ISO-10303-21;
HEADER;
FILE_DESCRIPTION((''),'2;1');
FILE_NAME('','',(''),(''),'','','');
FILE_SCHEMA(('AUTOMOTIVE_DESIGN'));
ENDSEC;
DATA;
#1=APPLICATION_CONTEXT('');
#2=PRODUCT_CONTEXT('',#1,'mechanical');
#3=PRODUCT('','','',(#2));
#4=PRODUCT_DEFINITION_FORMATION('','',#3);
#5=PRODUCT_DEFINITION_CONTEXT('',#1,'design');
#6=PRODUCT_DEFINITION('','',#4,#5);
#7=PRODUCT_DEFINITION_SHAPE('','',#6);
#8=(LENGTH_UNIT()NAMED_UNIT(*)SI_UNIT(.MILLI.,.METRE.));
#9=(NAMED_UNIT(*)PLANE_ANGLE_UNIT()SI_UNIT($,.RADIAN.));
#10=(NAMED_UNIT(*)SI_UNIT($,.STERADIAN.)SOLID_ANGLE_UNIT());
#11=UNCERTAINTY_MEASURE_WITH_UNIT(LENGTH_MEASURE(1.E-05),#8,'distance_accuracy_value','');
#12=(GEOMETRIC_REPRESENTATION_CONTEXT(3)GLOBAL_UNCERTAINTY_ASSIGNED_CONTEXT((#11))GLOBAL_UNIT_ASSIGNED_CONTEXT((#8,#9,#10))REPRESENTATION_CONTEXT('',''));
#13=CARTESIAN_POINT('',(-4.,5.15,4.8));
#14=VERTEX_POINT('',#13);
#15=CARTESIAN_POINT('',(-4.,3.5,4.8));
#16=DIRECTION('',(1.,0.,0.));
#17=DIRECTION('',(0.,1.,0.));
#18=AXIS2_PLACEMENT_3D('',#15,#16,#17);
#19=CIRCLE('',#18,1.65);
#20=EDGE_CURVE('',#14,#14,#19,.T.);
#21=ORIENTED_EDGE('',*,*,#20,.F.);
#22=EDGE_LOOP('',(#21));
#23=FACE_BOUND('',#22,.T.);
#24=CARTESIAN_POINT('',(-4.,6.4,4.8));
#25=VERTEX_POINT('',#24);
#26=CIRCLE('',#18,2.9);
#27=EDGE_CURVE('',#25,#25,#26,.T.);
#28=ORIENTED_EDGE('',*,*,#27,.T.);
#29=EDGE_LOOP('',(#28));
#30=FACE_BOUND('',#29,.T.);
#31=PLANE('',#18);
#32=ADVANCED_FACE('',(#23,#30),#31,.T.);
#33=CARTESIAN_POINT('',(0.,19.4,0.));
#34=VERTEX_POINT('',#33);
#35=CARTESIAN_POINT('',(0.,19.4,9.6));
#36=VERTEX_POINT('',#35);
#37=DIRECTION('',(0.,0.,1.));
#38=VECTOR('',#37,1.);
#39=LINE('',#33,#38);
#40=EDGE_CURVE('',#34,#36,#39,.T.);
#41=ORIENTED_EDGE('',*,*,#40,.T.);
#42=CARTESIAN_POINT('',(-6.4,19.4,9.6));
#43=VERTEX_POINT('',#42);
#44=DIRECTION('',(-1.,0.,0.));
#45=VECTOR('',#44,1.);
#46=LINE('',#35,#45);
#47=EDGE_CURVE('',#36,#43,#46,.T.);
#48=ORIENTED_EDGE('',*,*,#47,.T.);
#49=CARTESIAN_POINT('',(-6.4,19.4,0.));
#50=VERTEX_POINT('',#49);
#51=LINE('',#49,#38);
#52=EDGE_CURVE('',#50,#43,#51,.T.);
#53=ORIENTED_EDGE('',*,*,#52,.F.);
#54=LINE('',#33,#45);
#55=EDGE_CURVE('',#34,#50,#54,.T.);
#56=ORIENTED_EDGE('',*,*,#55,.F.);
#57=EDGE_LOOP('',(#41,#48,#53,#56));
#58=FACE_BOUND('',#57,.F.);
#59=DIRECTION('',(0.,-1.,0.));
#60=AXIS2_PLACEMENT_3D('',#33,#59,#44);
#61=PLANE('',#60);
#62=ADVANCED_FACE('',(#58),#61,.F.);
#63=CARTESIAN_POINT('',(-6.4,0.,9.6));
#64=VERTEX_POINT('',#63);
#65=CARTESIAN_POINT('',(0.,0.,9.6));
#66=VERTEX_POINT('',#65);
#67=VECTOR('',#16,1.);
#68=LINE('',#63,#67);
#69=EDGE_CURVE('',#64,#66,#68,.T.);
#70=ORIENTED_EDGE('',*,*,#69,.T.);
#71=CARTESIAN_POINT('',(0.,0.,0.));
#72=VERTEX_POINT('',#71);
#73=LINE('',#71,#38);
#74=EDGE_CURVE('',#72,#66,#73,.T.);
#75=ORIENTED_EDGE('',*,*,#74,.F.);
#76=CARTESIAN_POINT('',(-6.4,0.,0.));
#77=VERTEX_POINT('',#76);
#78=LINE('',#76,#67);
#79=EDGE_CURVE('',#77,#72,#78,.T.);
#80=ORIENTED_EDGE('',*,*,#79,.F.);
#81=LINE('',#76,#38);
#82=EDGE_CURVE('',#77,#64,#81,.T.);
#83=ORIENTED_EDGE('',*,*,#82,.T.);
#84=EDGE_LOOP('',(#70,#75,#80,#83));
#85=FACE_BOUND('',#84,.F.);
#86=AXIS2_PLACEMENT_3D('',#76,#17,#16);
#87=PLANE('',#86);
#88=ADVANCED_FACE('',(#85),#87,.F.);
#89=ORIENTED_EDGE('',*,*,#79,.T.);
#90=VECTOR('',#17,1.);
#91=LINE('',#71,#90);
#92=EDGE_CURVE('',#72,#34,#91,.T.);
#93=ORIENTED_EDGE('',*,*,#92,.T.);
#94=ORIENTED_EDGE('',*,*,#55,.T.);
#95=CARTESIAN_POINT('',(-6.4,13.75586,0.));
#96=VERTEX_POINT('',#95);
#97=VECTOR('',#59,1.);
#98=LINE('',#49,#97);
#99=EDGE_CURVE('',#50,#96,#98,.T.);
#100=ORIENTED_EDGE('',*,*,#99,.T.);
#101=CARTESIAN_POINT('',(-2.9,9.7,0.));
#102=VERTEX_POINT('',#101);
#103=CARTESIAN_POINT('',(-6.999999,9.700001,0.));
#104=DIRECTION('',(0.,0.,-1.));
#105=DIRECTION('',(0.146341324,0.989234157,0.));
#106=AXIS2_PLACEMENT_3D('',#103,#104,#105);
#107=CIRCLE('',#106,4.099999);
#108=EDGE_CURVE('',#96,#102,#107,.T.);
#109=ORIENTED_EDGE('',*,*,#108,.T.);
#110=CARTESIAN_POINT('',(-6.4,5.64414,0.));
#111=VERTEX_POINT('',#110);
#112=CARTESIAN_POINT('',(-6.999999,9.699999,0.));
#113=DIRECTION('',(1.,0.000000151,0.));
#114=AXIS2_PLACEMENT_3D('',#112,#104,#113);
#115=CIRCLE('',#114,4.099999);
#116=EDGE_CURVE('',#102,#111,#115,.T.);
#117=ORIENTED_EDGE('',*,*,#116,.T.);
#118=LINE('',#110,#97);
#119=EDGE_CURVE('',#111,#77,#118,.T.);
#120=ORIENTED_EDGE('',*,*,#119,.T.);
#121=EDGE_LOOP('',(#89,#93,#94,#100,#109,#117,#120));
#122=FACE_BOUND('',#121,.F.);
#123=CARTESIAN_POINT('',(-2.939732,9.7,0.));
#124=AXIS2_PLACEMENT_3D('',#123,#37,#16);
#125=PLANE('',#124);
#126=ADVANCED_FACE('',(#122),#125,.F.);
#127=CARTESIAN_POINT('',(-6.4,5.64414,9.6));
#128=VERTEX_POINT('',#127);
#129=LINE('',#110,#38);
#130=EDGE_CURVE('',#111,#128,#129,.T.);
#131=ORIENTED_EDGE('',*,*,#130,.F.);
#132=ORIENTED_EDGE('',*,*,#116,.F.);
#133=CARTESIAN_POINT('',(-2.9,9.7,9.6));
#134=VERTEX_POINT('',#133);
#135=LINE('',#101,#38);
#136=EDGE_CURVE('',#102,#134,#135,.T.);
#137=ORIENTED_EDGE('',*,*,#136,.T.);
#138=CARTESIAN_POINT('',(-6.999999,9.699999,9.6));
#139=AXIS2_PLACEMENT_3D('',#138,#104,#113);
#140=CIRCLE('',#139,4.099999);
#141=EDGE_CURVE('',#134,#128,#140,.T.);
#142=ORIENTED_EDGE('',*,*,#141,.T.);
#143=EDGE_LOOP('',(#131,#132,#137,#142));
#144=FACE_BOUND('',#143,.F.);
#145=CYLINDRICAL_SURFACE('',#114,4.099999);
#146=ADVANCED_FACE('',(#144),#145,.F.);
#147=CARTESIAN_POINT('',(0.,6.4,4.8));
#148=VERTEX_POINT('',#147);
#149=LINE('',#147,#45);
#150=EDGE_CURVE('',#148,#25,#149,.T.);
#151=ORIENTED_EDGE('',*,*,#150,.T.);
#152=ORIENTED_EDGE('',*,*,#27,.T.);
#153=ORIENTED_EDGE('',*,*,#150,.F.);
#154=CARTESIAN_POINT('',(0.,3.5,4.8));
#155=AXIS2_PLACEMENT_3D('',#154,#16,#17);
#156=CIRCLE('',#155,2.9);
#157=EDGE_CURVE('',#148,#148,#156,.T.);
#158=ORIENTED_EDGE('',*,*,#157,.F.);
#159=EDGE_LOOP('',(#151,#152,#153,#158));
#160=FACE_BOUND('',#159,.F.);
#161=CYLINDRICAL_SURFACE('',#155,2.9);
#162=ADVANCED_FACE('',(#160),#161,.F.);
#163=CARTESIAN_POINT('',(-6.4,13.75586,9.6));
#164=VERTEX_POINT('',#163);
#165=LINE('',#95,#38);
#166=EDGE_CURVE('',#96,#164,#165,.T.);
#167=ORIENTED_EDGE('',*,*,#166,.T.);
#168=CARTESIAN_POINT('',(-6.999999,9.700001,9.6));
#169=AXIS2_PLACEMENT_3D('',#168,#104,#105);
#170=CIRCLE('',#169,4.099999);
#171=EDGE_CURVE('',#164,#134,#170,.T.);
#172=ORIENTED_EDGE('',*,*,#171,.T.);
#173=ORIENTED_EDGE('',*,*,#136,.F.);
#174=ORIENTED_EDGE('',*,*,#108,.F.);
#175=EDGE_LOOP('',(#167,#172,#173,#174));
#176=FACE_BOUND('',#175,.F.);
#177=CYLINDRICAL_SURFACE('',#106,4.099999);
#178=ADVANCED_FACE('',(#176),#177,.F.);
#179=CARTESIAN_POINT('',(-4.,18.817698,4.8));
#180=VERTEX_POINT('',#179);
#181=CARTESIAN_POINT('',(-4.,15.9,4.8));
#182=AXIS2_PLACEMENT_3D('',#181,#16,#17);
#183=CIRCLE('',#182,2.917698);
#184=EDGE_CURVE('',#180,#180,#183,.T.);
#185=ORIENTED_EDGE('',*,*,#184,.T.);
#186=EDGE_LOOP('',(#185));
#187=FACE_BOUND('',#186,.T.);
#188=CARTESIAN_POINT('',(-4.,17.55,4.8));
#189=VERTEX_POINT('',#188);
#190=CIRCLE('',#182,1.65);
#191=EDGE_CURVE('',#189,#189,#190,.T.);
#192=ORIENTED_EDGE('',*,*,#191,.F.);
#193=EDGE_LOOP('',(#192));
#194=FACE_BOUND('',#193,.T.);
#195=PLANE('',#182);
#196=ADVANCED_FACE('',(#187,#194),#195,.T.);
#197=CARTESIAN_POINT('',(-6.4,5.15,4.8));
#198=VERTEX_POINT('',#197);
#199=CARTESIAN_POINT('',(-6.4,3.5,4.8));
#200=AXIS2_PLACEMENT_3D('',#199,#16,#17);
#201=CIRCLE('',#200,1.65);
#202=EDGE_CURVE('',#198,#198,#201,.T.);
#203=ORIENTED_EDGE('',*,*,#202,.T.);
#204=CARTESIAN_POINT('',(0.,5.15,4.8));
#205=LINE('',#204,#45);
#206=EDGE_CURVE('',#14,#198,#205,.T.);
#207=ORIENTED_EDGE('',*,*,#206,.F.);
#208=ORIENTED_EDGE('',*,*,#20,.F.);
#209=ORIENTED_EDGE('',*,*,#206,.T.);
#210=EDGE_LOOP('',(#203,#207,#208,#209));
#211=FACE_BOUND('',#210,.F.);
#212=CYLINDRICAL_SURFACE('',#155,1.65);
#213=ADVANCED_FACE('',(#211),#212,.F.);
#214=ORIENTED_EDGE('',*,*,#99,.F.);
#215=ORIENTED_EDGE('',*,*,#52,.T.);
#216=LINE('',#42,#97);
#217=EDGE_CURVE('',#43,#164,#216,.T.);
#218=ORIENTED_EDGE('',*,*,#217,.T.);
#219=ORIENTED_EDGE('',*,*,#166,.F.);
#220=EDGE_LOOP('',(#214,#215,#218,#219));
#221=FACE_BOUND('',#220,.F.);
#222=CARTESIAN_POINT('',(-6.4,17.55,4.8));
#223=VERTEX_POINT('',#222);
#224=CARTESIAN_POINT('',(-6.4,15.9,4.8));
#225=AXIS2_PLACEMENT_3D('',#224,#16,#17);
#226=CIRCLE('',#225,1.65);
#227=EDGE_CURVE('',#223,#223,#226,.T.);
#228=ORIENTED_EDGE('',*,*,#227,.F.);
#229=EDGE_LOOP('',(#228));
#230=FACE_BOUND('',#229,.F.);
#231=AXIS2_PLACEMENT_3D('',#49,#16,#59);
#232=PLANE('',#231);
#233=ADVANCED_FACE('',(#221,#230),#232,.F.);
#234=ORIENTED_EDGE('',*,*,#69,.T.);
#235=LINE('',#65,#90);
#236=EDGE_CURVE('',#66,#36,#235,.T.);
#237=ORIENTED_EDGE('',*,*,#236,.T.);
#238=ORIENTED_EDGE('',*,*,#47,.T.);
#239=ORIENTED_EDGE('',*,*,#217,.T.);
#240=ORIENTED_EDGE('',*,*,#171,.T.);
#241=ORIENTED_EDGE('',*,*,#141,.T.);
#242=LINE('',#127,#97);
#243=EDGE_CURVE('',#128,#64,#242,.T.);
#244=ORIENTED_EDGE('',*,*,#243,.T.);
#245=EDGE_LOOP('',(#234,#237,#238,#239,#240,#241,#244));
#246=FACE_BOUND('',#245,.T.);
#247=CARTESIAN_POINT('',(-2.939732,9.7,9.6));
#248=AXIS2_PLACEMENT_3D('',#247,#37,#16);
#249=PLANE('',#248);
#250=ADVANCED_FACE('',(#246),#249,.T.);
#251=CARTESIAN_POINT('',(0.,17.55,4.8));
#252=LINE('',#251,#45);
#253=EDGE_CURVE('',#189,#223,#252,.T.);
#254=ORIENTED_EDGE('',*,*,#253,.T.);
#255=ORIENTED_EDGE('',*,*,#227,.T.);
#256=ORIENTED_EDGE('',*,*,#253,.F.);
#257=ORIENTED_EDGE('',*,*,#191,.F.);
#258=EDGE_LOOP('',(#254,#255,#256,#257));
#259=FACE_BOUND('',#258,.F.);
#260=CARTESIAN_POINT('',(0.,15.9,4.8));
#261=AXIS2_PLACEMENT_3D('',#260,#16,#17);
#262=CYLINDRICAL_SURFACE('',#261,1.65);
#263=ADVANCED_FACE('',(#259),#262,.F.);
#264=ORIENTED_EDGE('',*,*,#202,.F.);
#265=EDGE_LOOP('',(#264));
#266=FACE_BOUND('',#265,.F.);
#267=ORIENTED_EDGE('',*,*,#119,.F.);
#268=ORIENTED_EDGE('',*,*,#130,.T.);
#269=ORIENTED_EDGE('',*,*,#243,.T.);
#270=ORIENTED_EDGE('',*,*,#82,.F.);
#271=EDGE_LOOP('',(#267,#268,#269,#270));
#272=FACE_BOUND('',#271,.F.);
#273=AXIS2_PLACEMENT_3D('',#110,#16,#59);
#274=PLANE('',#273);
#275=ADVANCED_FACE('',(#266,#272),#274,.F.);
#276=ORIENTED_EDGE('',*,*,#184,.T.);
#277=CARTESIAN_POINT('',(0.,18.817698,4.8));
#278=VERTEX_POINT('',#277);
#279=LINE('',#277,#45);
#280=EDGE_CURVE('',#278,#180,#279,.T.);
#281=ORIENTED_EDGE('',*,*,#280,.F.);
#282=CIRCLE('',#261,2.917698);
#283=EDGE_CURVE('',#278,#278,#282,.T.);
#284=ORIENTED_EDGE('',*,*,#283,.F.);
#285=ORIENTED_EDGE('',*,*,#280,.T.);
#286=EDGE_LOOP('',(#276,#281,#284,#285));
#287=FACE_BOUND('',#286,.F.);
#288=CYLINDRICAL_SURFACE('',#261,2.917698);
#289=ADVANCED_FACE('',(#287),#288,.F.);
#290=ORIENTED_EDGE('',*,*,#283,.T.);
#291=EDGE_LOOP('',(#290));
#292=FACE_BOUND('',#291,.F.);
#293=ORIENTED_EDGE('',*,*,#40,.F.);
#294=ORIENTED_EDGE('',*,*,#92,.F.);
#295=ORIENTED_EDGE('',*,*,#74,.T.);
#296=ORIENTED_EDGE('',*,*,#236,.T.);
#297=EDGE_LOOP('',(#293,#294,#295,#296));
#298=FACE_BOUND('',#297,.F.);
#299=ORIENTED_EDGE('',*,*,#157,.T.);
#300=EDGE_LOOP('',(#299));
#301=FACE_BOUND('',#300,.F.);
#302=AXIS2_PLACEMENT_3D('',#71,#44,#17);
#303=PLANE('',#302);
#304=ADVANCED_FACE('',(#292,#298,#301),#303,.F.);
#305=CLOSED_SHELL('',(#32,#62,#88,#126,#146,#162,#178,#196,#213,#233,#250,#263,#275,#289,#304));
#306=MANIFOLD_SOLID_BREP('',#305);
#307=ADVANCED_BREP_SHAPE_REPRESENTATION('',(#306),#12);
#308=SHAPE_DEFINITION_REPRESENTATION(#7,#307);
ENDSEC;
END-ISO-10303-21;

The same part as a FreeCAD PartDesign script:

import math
import FreeCAD as App
import Part
import Sketcher

doc = App.newDocument("Part")
params = doc.addObject("Spreadsheet::Sheet", "Params")
for row, (alias, value) in enumerate([
    ("sketch1_radius", "4.099999 mm"),
    ("sketch1_width", "6.4 mm"),
    ("sketch1_height", "19.4 mm"),
    ("pad1_length", "9.6 mm"),
    ("sketch2_diameter", "3.3 mm"),
    ("pocket1_length", "25 mm"),
    ("sketch3_diameter", "5.8 mm"),
    ("sketch3_diameter2", "3.3 mm"),
    ("pocket2_length", "4 mm"),
], start=1):
    params.set(f"A{row}", alias)
    params.set(f"B{row}", "=" + value)
    params.setAlias(f"B{row}", alias)

body = doc.addObject("PartDesign::Body", "Body")

sketch1 = body.newObject("Sketcher::SketchObject", "Sketch")
sketch1.AttachmentSupport = (doc.getObject("XY_Plane"), [""])
sketch1.MapMode = "FlatFace"
sketch1.addGeometry(Part.ArcOfCircle(Part.Circle(App.Vector(-6.999999, 9.700001, 0), App.Vector(0, 0, 1), 4.099999), math.radians(-0.000009), math.radians(81.58504)), False)
sketch1.addGeometry(Part.ArcOfCircle(Part.Circle(App.Vector(-6.999999, 9.699999, 0), App.Vector(0, 0, 1), 4.099999), math.radians(-81.58504), math.radians(0.000009)), False)
sketch1.addGeometry(Part.LineSegment(App.Vector(-6.4, 5.64414, 0), App.Vector(-6.4, 0, 0)), False)
sketch1.addGeometry(Part.LineSegment(App.Vector(-6.4, 0, 0), App.Vector(0, 0, 0)), False)
sketch1.addGeometry(Part.LineSegment(App.Vector(0, 0, 0), App.Vector(0, 19.4, 0)), False)
sketch1.addGeometry(Part.LineSegment(App.Vector(0, 19.4, 0), App.Vector(-6.4, 19.4, 0)), False)
sketch1.addGeometry(Part.LineSegment(App.Vector(-6.4, 19.4, 0), App.Vector(-6.4, 13.75586, 0)), False)
sketch1.addConstraint(Sketcher.Constraint("Tangent", 0, 1, 1, 2))
sketch1.addConstraint(Sketcher.Constraint("Coincident", 1, 1, 2, 1))
sketch1.addConstraint(Sketcher.Constraint("Coincident", 2, 2, 3, 1))
sketch1.addConstraint(Sketcher.Constraint("Coincident", 3, 2, 4, 1))
sketch1.addConstraint(Sketcher.Constraint("Coincident", 4, 2, 5, 1))
sketch1.addConstraint(Sketcher.Constraint("Coincident", 5, 2, 6, 1))
sketch1.addConstraint(Sketcher.Constraint("Coincident", 6, 2, 0, 2))
sketch1.addConstraint(Sketcher.Constraint("Vertical", 2))
sketch1.addConstraint(Sketcher.Constraint("Horizontal", 3))
sketch1.addConstraint(Sketcher.Constraint("Vertical", 4))
sketch1.addConstraint(Sketcher.Constraint("Horizontal", 5))
sketch1.addConstraint(Sketcher.Constraint("Vertical", 6))
sketch1.addConstraint(Sketcher.Constraint("Coincident", 3, 2, -1, 1))
sketch1.addConstraint(Sketcher.Constraint("Equal", 0, 1))
sketch1.addConstraint(Sketcher.Constraint("Horizontal", 1, 3, 0, 1))
sketch1.addConstraint(Sketcher.Constraint("Vertical", 2, 2, 5, 2))
sketch1.addConstraint(Sketcher.Constraint("Equal", 2, 6))
sketch1.addConstraint(Sketcher.Constraint("Radius", 0, 4.099999))
sketch1.addConstraint(Sketcher.Constraint("DistanceX", 3, 1, 3, 2, 6.4))
sketch1.addConstraint(Sketcher.Constraint("DistanceY", 4, 1, 4, 2, 19.4))
sketch1.addConstraint(Sketcher.Constraint("DistanceX", 0, 3, -1, 1, 6.999999))
sketch1.setExpression("Constraints[17]", "Params.sketch1_radius")
sketch1.setExpression("Constraints[18]", "Params.sketch1_width")
sketch1.setExpression("Constraints[19]", "Params.sketch1_height")
pad1 = body.newObject("PartDesign::Pad", "Pad")
pad1.Profile = sketch1
pad1.setExpression("Length", "Params.pad1_length")

sketch2 = body.newObject("Sketcher::SketchObject", "Sketch001")
sketch2.AttachmentSupport = (doc.getObject("YZ_Plane"), [""])
sketch2.MapMode = "FlatFace"
sketch2.addGeometry(Part.Circle(App.Vector(3.5, 4.8, 0), App.Vector(0, 0, 1), 1.65), False)
sketch2.addGeometry(Part.Circle(App.Vector(15.9, 4.8, 0), App.Vector(0, 0, 1), 1.65), False)
sketch2.addConstraint(Sketcher.Constraint("Equal", 0, 1))
sketch2.addConstraint(Sketcher.Constraint("Horizontal", 0, 3, 1, 3))
sketch2.addConstraint(Sketcher.Constraint("Diameter", 0, 3.3))
sketch2.addConstraint(Sketcher.Constraint("DistanceX", -1, 1, 0, 3, 3.5))
sketch2.addConstraint(Sketcher.Constraint("DistanceY", -1, 1, 0, 3, 4.8))
sketch2.addConstraint(Sketcher.Constraint("DistanceX", -1, 1, 1, 3, 15.9))
sketch2.setExpression("Constraints[2]", "Params.sketch2_diameter")
pocket1 = body.newObject("PartDesign::Pocket", "Pocket")
pocket1.Profile = sketch2
pocket1.setExpression("Length", "Params.pocket1_length")

sketch3 = body.newObject("Sketcher::SketchObject", "Sketch002")
sketch3.AttachmentSupport = (doc.getObject("YZ_Plane"), [""])
sketch3.MapMode = "FlatFace"
sketch3.addGeometry(Part.Circle(App.Vector(3.5, 4.8, 0), App.Vector(0, 0, 1), 2.9), False)
sketch3.addGeometry(Part.Circle(App.Vector(3.5, 4.8, 0), App.Vector(0, 0, 1), 1.65), False)
sketch3.addGeometry(Part.Circle(App.Vector(15.9, 4.8, 0), App.Vector(0, 0, 1), 2.917698), False)
sketch3.addGeometry(Part.Circle(App.Vector(15.9, 4.8, 0), App.Vector(0, 0, 1), 1.65), False)
sketch3.addConstraint(Sketcher.Constraint("Coincident", 1, 3, 0, 3))
sketch3.addConstraint(Sketcher.Constraint("Coincident", 3, 3, 2, 3))
sketch3.addConstraint(Sketcher.Constraint("Equal", 1, 3))
sketch3.addConstraint(Sketcher.Constraint("Horizontal", 1, 3, 2, 3))
sketch3.addConstraint(Sketcher.Constraint("Diameter", 0, 5.8))
sketch3.addConstraint(Sketcher.Constraint("Diameter", 1, 3.3))
sketch3.addConstraint(Sketcher.Constraint("DistanceX", -1, 1, 0, 3, 3.5))
sketch3.addConstraint(Sketcher.Constraint("DistanceY", -1, 1, 0, 3, 4.8))
sketch3.addConstraint(Sketcher.Constraint("DistanceX", -1, 1, 2, 3, 15.9))
sketch3.addConstraint(Sketcher.Constraint("Diameter", 2, 5.835396))
sketch3.setExpression("Constraints[4]", "Params.sketch3_diameter")
sketch3.setExpression("Constraints[5]", "Params.sketch3_diameter2")
pocket2 = body.newObject("PartDesign::Pocket", "Pocket001")
pocket2.Profile = sketch3
pocket2.setExpression("Length", "Params.pocket2_length")

doc.recompute()
